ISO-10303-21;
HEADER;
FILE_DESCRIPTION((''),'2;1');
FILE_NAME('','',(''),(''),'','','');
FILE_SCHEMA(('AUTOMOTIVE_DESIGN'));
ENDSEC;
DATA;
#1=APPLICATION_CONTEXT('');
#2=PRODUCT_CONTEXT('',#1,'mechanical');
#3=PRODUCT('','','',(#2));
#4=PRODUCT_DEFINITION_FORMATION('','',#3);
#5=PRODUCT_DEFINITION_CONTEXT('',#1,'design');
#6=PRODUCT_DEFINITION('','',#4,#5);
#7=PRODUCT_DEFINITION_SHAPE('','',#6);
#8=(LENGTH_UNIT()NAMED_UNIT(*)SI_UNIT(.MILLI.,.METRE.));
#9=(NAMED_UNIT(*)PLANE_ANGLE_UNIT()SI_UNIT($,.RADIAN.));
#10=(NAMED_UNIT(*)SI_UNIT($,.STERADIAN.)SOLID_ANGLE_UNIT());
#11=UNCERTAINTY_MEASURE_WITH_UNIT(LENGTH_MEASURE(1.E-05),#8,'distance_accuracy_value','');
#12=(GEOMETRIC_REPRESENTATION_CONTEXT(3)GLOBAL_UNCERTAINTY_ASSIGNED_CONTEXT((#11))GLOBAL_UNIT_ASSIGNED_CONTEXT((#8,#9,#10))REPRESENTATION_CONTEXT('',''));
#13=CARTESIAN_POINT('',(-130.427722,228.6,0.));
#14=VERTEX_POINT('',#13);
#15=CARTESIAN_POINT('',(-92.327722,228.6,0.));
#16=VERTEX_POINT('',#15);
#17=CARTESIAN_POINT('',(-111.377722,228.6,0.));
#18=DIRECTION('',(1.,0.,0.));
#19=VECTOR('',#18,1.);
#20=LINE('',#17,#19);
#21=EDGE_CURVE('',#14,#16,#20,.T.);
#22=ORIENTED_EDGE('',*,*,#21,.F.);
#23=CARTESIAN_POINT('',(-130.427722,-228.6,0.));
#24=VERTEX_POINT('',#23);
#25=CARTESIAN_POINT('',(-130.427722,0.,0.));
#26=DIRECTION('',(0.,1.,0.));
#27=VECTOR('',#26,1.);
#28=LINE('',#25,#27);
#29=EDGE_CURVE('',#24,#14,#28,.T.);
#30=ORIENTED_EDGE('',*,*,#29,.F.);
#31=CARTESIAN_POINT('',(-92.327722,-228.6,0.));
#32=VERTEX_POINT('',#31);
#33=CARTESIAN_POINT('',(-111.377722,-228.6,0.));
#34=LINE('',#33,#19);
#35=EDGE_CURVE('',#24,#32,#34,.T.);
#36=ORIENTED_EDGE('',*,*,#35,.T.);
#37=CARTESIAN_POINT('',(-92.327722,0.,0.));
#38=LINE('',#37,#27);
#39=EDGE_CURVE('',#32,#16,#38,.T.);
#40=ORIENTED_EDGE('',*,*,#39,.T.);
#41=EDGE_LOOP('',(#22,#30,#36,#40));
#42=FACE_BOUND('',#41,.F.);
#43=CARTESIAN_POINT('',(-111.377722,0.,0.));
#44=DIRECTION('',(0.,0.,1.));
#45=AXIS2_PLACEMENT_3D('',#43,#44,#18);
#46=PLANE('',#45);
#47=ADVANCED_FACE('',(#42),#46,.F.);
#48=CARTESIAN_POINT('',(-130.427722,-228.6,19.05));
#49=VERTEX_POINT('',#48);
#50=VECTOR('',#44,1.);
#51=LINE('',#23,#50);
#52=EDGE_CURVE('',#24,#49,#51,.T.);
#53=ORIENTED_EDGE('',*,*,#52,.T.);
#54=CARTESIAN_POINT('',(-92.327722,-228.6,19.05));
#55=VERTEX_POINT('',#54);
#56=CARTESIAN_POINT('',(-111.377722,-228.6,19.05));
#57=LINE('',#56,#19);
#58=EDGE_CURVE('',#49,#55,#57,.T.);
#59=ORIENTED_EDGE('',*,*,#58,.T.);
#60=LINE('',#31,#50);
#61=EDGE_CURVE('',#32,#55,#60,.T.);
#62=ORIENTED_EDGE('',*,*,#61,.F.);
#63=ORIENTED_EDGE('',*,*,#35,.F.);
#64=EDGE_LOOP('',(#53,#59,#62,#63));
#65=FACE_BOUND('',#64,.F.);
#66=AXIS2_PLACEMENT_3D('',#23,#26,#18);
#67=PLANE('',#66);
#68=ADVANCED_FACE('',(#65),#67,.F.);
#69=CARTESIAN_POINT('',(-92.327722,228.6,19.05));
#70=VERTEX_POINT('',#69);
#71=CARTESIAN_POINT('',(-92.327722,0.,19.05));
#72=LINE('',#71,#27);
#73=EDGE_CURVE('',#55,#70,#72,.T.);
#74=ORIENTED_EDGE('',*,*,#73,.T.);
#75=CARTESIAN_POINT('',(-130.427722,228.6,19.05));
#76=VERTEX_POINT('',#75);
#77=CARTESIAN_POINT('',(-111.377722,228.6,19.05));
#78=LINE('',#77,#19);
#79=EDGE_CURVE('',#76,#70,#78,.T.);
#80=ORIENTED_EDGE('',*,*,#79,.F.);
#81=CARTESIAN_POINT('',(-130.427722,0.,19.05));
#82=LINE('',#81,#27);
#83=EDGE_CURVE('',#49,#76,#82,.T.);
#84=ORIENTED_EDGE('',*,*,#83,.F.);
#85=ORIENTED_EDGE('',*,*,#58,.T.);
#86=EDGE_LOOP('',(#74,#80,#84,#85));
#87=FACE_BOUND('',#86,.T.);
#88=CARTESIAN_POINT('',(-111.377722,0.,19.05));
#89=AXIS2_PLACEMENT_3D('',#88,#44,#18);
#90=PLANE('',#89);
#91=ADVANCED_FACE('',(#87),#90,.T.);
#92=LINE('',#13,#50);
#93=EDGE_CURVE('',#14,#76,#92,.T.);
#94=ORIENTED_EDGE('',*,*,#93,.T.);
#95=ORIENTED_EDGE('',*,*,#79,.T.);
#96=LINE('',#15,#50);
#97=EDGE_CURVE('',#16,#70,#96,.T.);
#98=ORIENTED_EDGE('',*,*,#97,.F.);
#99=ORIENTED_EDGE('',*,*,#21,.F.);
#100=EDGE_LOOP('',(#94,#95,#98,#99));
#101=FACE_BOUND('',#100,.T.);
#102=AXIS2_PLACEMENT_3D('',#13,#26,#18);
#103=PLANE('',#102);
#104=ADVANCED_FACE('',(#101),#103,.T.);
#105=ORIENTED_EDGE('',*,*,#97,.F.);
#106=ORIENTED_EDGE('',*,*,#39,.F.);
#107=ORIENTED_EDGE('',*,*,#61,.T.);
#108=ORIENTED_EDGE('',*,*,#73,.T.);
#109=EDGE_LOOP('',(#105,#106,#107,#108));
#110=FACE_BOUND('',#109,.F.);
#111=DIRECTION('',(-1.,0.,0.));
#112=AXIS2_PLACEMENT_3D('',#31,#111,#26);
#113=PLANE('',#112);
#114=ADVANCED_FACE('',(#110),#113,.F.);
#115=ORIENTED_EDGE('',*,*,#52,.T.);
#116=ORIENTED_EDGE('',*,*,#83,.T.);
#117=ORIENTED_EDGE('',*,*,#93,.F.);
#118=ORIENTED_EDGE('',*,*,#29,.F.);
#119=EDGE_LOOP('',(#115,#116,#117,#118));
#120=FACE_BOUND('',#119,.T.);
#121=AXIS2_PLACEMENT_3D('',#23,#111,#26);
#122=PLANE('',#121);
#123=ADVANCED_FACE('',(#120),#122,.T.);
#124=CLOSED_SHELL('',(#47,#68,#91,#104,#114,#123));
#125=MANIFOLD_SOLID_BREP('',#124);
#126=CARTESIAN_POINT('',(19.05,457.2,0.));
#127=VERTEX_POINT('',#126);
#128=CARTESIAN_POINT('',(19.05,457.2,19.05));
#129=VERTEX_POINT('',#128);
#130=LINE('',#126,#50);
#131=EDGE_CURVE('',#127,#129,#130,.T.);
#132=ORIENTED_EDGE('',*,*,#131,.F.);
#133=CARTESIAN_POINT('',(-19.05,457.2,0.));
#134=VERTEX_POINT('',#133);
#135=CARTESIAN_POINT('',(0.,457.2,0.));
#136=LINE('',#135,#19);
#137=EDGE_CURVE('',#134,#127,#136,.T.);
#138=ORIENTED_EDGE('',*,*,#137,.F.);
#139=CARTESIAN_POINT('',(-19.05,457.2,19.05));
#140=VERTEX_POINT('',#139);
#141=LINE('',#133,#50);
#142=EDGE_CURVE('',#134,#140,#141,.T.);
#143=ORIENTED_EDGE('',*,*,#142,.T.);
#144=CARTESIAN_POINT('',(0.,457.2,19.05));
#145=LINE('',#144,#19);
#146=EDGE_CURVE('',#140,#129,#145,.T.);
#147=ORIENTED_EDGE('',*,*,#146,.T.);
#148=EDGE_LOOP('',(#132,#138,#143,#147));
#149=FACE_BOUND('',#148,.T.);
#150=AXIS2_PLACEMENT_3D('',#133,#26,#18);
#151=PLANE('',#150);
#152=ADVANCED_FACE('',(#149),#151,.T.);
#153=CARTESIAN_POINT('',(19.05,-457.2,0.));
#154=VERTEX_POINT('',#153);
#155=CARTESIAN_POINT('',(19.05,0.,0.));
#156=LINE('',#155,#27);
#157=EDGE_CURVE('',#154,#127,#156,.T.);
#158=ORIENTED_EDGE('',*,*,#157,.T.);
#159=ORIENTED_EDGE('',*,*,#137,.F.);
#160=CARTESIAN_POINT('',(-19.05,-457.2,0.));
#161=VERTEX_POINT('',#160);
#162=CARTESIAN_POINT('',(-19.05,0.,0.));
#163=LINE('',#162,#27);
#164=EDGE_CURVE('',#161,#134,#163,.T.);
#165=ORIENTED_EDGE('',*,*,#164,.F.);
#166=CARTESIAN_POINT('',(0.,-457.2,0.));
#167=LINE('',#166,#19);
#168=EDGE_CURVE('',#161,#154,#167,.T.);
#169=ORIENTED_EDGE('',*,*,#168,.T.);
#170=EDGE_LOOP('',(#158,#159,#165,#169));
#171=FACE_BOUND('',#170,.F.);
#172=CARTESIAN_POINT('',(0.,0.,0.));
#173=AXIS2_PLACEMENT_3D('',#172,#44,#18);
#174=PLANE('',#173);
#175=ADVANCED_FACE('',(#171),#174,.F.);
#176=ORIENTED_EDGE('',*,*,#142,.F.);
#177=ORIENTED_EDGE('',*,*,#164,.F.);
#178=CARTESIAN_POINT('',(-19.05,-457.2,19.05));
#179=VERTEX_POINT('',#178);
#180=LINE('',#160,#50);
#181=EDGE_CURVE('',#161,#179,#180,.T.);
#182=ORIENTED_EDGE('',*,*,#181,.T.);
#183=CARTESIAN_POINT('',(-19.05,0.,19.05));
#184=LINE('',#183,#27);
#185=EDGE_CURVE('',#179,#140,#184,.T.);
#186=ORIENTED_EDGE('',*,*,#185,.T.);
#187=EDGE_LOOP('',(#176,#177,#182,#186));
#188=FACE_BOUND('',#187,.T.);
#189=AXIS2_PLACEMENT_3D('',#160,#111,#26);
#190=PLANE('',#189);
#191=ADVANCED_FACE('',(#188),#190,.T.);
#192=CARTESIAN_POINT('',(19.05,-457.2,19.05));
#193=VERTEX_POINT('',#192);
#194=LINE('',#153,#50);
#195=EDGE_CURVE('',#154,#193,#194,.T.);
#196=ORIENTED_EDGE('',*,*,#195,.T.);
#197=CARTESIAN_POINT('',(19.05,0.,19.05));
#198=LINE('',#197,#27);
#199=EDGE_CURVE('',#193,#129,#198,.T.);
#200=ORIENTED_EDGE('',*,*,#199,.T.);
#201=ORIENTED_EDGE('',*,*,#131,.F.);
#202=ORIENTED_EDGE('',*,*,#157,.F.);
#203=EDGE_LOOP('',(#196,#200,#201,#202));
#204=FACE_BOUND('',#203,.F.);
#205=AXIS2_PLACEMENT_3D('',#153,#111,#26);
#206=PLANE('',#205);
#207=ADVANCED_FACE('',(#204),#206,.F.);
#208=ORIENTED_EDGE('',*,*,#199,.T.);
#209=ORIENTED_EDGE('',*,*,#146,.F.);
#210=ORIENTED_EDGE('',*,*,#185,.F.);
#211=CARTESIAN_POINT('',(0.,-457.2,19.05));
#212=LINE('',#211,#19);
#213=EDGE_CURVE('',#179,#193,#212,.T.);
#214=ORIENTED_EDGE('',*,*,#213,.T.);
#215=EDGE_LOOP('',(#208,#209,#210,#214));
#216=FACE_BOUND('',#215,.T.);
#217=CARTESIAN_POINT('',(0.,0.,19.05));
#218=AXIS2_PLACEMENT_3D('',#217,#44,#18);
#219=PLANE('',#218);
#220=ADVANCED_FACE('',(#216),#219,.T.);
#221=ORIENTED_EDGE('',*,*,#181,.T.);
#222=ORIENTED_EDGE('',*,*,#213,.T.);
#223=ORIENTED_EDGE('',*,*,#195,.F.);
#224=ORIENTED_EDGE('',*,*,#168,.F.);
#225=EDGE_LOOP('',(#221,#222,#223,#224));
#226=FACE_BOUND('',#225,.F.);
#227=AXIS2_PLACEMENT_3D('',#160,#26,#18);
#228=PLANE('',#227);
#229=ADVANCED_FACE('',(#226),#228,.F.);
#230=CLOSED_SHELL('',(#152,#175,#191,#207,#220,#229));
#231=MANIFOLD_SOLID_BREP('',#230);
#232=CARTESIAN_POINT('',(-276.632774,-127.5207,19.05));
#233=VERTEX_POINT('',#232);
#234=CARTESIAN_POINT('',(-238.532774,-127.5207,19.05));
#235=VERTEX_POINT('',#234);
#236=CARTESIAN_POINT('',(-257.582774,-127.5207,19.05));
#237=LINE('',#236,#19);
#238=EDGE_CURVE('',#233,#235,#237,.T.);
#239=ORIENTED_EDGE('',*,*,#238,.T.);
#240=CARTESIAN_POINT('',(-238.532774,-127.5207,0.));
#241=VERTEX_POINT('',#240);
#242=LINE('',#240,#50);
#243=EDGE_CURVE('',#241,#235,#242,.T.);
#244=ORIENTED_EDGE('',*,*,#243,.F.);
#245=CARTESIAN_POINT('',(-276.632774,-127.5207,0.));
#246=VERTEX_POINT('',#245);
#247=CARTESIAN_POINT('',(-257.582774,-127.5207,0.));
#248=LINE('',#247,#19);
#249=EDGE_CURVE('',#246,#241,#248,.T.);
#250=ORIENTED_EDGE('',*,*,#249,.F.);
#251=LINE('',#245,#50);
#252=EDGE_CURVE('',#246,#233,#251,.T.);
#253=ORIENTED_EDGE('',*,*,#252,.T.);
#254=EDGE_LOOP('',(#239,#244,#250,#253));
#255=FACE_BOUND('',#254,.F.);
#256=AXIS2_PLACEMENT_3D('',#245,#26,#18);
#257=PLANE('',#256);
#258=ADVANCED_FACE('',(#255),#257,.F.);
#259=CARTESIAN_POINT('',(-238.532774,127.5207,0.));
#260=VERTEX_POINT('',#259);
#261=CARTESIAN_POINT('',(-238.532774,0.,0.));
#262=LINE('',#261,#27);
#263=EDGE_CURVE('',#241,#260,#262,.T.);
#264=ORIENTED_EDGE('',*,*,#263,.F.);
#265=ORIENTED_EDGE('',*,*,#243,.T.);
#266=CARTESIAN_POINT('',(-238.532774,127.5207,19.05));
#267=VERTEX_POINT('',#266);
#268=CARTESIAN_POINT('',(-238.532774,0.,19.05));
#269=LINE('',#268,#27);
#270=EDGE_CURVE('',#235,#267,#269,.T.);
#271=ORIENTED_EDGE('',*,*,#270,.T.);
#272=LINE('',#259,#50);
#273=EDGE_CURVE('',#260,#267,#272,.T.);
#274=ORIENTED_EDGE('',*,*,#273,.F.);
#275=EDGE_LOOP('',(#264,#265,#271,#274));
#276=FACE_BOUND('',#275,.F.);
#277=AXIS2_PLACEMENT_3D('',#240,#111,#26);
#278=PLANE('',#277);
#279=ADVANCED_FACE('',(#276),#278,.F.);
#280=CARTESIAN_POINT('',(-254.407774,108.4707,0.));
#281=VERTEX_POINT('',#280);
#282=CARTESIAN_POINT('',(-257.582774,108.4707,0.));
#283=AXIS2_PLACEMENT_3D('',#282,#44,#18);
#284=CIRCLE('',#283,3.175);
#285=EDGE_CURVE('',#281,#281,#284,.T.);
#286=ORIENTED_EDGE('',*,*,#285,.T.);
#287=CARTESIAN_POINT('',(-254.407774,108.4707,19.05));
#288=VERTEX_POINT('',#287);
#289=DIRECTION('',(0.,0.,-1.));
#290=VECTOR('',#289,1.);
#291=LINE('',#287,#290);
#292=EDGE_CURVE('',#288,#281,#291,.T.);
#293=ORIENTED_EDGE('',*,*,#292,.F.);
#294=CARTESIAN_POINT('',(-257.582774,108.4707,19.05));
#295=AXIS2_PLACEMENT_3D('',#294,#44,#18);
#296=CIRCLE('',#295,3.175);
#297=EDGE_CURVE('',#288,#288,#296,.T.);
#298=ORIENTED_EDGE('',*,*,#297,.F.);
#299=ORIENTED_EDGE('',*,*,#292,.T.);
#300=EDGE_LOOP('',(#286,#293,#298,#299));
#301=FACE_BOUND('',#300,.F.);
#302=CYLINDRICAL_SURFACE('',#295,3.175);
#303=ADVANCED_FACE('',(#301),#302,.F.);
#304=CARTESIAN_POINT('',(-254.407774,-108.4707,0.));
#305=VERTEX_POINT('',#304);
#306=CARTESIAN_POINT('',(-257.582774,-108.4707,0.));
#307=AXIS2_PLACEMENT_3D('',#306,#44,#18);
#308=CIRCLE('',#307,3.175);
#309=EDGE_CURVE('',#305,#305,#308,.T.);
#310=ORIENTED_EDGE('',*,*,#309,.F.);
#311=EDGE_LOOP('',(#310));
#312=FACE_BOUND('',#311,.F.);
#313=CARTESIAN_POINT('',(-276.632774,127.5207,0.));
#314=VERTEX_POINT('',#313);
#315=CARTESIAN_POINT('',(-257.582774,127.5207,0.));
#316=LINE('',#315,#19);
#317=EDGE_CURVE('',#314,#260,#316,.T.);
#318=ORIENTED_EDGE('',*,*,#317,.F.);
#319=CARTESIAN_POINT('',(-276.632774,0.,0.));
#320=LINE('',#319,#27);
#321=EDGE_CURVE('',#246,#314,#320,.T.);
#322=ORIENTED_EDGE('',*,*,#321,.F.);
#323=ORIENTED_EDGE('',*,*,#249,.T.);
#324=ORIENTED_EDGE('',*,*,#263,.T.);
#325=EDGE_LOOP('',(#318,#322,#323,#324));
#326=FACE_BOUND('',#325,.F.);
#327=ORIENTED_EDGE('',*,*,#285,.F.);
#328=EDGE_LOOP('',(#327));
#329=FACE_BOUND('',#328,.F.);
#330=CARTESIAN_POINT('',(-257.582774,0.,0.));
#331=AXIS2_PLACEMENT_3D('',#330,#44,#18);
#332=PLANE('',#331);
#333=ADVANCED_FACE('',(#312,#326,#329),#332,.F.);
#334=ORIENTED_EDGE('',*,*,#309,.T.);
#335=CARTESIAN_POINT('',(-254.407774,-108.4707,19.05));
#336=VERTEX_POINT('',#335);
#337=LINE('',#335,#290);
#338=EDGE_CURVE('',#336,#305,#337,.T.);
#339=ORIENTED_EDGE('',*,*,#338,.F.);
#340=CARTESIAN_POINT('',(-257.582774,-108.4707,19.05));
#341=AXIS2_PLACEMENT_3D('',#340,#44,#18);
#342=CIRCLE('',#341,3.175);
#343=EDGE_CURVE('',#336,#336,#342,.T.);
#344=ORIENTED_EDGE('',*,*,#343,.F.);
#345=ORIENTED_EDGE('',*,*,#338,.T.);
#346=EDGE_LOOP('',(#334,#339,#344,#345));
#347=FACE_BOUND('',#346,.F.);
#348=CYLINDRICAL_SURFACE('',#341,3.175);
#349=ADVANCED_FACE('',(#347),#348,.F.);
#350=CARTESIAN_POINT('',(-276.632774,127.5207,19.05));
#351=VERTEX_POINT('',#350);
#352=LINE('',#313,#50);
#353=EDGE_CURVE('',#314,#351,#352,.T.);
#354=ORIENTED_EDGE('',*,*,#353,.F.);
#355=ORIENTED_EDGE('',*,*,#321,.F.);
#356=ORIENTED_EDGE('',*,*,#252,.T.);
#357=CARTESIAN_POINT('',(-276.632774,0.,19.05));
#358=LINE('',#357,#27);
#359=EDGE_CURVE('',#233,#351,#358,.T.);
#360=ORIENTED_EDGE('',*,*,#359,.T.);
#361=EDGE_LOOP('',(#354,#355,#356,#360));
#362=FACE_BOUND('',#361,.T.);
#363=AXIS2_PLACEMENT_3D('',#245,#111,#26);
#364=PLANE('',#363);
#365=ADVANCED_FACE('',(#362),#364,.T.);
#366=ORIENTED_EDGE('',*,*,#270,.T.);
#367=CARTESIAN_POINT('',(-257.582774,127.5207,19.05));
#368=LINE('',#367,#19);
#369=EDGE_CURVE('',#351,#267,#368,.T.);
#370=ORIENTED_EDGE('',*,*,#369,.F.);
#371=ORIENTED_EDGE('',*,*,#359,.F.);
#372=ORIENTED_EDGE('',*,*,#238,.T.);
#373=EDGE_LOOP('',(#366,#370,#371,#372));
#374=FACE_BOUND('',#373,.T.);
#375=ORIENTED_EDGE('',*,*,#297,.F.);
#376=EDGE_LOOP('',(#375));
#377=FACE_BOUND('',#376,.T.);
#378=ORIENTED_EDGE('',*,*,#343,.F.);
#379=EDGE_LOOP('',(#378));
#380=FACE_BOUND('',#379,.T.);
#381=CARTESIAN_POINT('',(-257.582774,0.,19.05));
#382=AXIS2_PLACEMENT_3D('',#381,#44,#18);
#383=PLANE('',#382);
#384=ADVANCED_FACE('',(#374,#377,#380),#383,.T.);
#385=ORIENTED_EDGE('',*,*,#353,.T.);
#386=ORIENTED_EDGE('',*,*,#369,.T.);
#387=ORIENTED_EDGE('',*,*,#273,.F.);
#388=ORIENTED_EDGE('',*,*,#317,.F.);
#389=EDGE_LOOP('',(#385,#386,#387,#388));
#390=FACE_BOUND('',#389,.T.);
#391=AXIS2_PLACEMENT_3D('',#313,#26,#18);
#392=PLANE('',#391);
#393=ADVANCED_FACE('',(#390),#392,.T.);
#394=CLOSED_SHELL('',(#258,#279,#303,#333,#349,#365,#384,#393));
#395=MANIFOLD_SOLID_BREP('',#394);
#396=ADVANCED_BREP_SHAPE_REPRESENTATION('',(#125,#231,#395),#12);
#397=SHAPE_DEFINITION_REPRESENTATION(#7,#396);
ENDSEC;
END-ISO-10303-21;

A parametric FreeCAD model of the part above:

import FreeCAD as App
import Part
import Sketcher
from FreeCAD import Vector
Q = App.Units.Quantity


def add_polygon(sketch, points):
    """Adds a closed chain of lines whose ends are joined by coincident constraints."""
    first, n = sketch.GeometryCount, len(points)
    for a, b in zip(points, points[1:] + points[:1]):
        sketch.addGeometry(Part.LineSegment(App.Vector(*a, 0), App.Vector(*b, 0)), False)
    for i in range(n):
        sketch.addConstraint(Sketcher.Constraint("Coincident", first + i, 2, first + (i + 1) % n, 1))

doc = App.newDocument("Part")
params = doc.addObject("Spreadsheet::Sheet", "Params")
for row, (alias, value) in enumerate([
    ("sketch1_height", "36 in"),
    ("sketch1_width", "1.5 in"),
    ("pad1_length", "0.75 in"),
    ("sketch2_height", "18 in"),
    ("sketch2_width", "1.5 in"),
    ("pad2_length", "0.75 in"),
    ("sketch3_width", "1.5 in"),
    ("sketch3_height", "10.041 in"),
    ("pad3_length", "0.75 in"),
    ("sketch4_diameter", "0.25 in"),
], start=1):
    params.set(f"A{row}", alias)
    params.set(f"B{row}", "=" + value)
    params.setAlias(f"B{row}", alias)

body = doc.addObject("PartDesign::Body", "Body")

# Sketch on XY plane
sketch1 = body.newObject("Sketcher::SketchObject", "Sketch")
sketch1.AttachmentSupport = (doc.getObject("XY_Plane"), [""])
sketch1.MapMode = "FlatFace"
add_polygon(sketch1, [(-19.05, 457.2), (-19.05, -457.2), (19.05, -457.2), (19.05, 457.2)])  # lines 0-3
sketch1.addConstraint([
    Sketcher.Constraint("Vertical", 0),
    Sketcher.Constraint("Horizontal", 1),
    Sketcher.Constraint("Vertical", 2),
    Sketcher.Constraint("Horizontal", 3),
    Sketcher.Constraint("Symmetric", 0, 2, 2, 2, -1, 1),
    Sketcher.Constraint("DistanceY", 0, 2, 0, 1, Q("36 in")),
    Sketcher.Constraint("DistanceX", 1, 1, 1, 2, Q("1.5 in")),
])
sketch1.setExpression("Constraints[9]", "Params.sketch1_height")
sketch1.setExpression("Constraints[10]", "Params.sketch1_width")
pad1 = body.newObject("PartDesign::Pad", "Pad")
pad1.Profile = sketch1
pad1.setExpression("Length", "Params.pad1_length")
body2 = doc.addObject("PartDesign::Body", "Body001")

# Sketch on XY plane
sketch2 = body2.newObject("Sketcher::SketchObject", "Sketch001")
sketch2.AttachmentSupport = (doc.getObject("XY_Plane001"), [""])
sketch2.MapMode = "FlatFace"
add_polygon(sketch2, [(-130.427722, 228.6), (-130.427722, -228.6), (-92.327722, -228.6), (-92.327722, 228.6)])  # lines 0-3
sketch2.addConstraint([
    Sketcher.Constraint("Vertical", 0),
    Sketcher.Constraint("Horizontal", 1),
    Sketcher.Constraint("Vertical", 2),
    Sketcher.Constraint("Horizontal", 3),
    Sketcher.Constraint("DistanceY", 0, 2, 0, 1, Q("18 in")),
    Sketcher.Constraint("DistanceX", 1, 1, 1, 2, Q("1.5 in")),
    Sketcher.Constraint("DistanceY", 0, 2, -1, 1, Q("9 in")),
    Sketcher.Constraint("DistanceX", 0, 2, -1, 1, Q("130.427722 mm")),
])
sketch2.setExpression("Constraints[8]", "Params.sketch2_height")
sketch2.setExpression("Constraints[9]", "Params.sketch2_width")
pad2 = body2.newObject("PartDesign::Pad", "Pad001")
pad2.Profile = sketch2
pad2.setExpression("Length", "Params.pad2_length")
body3 = doc.addObject("PartDesign::Body", "Body002")

# Sketch on XY plane
sketch3 = body3.newObject("Sketcher::SketchObject", "Sketch002")
sketch3.AttachmentSupport = (doc.getObject("XY_Plane002"), [""])
sketch3.MapMode = "FlatFace"
add_polygon(sketch3, [(-276.632774, 127.5207), (-276.632774, -127.5207), (-238.532774, -127.5207), (-238.532774, 127.5207)])  # lines 0-3
sketch3.addConstraint([
    Sketcher.Constraint("Vertical", 0),
    Sketcher.Constraint("Horizontal", 1),
    Sketcher.Constraint("Vertical", 2),
    Sketcher.Constraint("Horizontal", 3),
    Sketcher.Constraint("DistanceX", 1, 1, 1, 2, Q("1.5 in")),
    Sketcher.Constraint("DistanceY", 0, 2, 0, 1, Q("10.041 in")),
    Sketcher.Constraint("DistanceY", 0, 2, -1, 1, Q("5.0205 in")),
    Sketcher.Constraint("DistanceX", 0, 2, -1, 1, Q("276.632774 mm")),
])
sketch3.setExpression("Constraints[8]", "Params.sketch3_width")
sketch3.setExpression("Constraints[9]", "Params.sketch3_height")
pad3 = body3.newObject("PartDesign::Pad", "Pad002")
pad3.Profile = sketch3
pad3.setExpression("Length", "Params.pad3_length")

# Sketch on XY plane
sketch4 = body3.newObject("Sketcher::SketchObject", "Sketch003")
sketch4.AttachmentSupport = (doc.getObject("XY_Plane002"), [""])
sketch4.MapMode = "FlatFace"
sketch4.AttachmentOffset = App.Placement(Vector(0, 0, 0.75 * 25.4), App.Rotation())
sketch4.addGeometry([
    Part.Circle(Vector(-257.582774, 108.4707, 0), Vector(0, 0, 1), 3.175),
    Part.Circle(Vector(-257.582774, -108.4707, 0), Vector(0, 0, 1), 3.175),
], False)
sketch4.addConstraint([
    Sketcher.Constraint("Equal", 0, 1),
    Sketcher.Constraint("Symmetric", 0, 3, 1, 3, -1),
    Sketcher.Constraint("Diameter", 0, Q("0.25 in")),
    Sketcher.Constraint("DistanceY", 1, 3, 0, 3, Q("8.541 in")),
    Sketcher.Constraint("DistanceX", 0, 3, -1, 1, Q("257.582774 mm")),
])
sketch4.setExpression("Constraints[2]", "Params.sketch4_diameter")
pocket1 = body3.newObject("PartDesign::Pocket", "Pocket")
pocket1.Profile = sketch4
pocket1.Type = "ThroughAll"

doc.recompute()
